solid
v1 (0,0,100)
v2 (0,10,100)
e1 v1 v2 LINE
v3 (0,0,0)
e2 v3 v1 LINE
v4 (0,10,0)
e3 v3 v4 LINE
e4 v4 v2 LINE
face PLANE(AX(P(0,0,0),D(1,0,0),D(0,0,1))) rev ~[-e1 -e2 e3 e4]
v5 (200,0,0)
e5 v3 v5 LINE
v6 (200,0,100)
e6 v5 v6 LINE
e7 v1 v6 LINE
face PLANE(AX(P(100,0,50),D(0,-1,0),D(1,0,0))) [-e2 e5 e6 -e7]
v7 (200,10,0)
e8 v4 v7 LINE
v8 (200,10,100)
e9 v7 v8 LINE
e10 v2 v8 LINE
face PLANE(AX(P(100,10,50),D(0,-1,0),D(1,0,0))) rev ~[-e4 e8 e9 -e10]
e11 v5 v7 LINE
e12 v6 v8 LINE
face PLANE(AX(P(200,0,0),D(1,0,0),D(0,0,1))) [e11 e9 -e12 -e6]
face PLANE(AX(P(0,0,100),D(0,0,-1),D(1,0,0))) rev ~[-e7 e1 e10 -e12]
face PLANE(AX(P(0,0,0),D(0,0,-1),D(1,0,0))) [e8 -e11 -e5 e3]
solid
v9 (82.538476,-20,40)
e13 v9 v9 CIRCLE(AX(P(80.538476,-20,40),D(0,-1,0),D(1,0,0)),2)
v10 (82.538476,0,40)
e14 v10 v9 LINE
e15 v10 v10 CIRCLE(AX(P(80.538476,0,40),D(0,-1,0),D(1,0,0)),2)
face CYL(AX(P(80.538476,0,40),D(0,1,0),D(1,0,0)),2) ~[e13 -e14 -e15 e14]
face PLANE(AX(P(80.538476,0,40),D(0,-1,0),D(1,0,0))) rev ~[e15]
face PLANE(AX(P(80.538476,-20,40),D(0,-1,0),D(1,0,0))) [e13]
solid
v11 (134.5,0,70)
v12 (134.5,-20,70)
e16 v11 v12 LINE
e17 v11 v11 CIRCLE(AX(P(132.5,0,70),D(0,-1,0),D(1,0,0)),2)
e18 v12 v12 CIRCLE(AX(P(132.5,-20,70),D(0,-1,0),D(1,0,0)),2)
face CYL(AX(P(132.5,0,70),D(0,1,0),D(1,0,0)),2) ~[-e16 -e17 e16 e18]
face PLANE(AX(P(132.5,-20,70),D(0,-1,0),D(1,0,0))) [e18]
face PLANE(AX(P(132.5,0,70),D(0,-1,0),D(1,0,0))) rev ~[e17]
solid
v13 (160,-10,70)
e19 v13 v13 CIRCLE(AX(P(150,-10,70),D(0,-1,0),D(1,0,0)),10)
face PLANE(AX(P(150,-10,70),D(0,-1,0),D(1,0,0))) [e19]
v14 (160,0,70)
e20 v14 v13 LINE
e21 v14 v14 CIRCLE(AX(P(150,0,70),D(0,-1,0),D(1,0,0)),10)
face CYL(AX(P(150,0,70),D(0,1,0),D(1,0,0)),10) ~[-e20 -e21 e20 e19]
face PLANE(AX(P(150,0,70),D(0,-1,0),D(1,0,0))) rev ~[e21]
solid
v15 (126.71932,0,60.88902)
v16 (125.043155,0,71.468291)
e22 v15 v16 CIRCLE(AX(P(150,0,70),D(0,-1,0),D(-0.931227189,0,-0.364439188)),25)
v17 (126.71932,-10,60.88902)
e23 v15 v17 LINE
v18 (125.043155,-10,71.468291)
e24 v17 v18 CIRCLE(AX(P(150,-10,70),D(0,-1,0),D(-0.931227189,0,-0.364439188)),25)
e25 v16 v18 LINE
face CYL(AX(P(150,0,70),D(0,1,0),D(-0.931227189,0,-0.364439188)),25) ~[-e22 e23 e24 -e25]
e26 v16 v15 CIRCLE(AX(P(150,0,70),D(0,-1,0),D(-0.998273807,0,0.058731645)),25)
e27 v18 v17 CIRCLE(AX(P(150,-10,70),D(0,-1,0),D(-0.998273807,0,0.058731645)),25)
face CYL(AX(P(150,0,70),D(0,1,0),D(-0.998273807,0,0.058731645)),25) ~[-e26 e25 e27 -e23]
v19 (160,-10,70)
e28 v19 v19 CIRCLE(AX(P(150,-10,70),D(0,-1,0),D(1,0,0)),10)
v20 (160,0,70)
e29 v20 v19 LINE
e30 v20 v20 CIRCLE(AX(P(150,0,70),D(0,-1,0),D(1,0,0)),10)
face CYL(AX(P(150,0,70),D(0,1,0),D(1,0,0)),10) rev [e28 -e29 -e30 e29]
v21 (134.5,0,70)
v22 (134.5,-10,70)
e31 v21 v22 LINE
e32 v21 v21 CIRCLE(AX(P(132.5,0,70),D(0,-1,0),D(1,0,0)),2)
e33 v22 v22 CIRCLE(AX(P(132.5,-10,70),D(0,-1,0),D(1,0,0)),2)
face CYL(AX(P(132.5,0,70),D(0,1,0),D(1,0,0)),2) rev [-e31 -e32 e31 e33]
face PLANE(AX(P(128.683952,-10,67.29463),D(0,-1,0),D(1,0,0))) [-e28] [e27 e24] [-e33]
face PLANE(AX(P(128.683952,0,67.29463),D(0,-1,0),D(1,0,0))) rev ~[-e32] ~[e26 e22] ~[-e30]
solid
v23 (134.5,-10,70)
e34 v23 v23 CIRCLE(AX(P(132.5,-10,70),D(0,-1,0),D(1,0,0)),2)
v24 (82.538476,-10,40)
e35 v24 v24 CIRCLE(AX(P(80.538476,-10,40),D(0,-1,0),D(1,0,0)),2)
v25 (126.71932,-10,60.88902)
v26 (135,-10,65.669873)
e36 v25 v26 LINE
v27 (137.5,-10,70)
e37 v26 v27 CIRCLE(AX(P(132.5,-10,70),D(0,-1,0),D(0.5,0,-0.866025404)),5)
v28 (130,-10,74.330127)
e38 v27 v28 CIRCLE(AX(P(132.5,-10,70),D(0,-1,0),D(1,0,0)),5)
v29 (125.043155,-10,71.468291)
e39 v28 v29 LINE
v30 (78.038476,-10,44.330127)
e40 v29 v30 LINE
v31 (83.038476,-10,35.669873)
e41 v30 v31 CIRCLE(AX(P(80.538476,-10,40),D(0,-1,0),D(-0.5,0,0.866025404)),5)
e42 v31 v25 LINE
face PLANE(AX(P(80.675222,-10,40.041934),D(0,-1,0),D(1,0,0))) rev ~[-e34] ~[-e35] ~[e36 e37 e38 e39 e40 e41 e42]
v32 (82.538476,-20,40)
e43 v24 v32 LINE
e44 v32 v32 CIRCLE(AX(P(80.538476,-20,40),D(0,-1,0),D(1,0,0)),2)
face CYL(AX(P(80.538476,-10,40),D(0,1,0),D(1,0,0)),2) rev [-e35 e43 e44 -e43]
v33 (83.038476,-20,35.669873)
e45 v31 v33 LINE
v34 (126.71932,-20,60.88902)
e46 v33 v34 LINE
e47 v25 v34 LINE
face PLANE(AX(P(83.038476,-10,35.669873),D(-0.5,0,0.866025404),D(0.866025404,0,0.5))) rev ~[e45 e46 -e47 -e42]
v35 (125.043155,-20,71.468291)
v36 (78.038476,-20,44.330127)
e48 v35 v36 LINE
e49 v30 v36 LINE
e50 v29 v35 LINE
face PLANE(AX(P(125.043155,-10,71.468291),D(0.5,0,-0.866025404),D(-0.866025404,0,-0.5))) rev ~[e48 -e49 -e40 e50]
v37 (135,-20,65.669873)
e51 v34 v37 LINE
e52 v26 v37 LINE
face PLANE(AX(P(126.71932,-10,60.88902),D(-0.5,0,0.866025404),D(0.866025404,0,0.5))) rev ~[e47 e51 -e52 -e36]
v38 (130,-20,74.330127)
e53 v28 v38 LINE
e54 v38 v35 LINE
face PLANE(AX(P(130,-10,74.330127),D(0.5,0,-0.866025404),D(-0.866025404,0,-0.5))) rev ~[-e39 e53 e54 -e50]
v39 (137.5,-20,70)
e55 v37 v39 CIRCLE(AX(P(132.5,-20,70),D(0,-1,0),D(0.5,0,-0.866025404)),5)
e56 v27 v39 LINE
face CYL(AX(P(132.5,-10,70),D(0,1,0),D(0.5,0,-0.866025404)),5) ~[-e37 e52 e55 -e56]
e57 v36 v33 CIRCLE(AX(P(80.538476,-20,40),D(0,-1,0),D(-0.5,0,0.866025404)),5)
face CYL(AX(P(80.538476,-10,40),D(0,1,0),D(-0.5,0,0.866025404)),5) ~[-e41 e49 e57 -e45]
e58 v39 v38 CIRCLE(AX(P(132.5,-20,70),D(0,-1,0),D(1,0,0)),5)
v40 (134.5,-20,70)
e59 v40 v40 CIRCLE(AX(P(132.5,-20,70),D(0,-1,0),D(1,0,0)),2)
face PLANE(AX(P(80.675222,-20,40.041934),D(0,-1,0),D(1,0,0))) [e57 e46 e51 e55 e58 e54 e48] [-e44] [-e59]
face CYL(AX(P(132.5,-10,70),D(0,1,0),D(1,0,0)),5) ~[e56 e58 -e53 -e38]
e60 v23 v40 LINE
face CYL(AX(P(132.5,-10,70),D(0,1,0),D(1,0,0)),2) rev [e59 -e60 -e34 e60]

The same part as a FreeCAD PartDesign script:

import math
import FreeCAD as App
import Part
import Sketcher

V = App.Vector
Q = App.Units.Quantity

doc = App.newDocument("Part")
params = doc.addObject("Spreadsheet::Sheet", "Params")
for row, (alias, value) in enumerate([
    ("sketch1_width", "200 mm"),
    ("sketch1_height", "100 mm"),
    ("pad1_length", "10 mm"),
    ("sketch2_diameter", "4 mm"),
    ("sketch2_diameter2", "20 mm"),
    ("sketch2_radius", "25 mm"),
    ("pad2_length", "10 mm"),
    ("sketch3_diameter", "4 mm"),
    ("sketch3_radius", "5 mm"),
    ("pad3_length", "10 mm"),
    ("sketch4_diameter", "20 mm"),
    ("pad4_length", "10 mm"),
    ("sketch5_diameter", "4 mm"),
    ("pad5_length", "20 mm"),
    ("sketch6_diameter", "4 mm"),
    ("pad6_length", "20 mm"),
], start=1):
    params.set(f"A{row}", alias)
    params.set(f"B{row}", "=" + value)
    params.setAlias(f"B{row}", alias)

body = doc.addObject("PartDesign::Body", "Body")

# Sketch on XZ plane
sketch1 = body.newObject("Sketcher::SketchObject", "Sketch")
sketch1.AttachmentSupport = (doc.getObject("XZ_Plane"), [""])
sketch1.MapMode = "FlatFace"
sketch1.addGeometry(Part.LineSegment(V(0, 100, 0), V(0, 0, 0)), False)
sketch1.addGeometry(Part.LineSegment(V(0, 0, 0), V(200, 0, 0)), False)
sketch1.addGeometry(Part.LineSegment(V(200, 0, 0), V(200, 100, 0)), False)
sketch1.addGeometry(Part.LineSegment(V(200, 100, 0), V(0, 100, 0)), False)
sketch1.addConstraint(Sketcher.Constraint("Coincident", 0, 2, 1, 1))
sketch1.addConstraint(Sketcher.Constraint("Coincident", 1, 2, 2, 1))
sketch1.addConstraint(Sketcher.Constraint("Coincident", 2, 2, 3, 1))
sketch1.addConstraint(Sketcher.Constraint("Coincident", 3, 2, 0, 1))
sketch1.addConstraint(Sketcher.Constraint("Vertical", 0))
sketch1.addConstraint(Sketcher.Constraint("Horizontal", 1))
sketch1.addConstraint(Sketcher.Constraint("Vertical", 2))
sketch1.addConstraint(Sketcher.Constraint("Horizontal", 3))
sketch1.addConstraint(Sketcher.Constraint("Coincident", 0, 2, -1, 1))
sketch1.addConstraint(Sketcher.Constraint("DistanceX", 1, 1, 1, 2, Q("200 mm")))
sketch1.addConstraint(Sketcher.Constraint("DistanceY", 0, 2, 0, 1, Q("100 mm")))
sketch1.setExpression("Constraints[9]", "Params.sketch1_width")
sketch1.setExpression("Constraints[10]", "Params.sketch1_height")
pad1 = body.newObject("PartDesign::Pad", "Pad")
pad1.Profile = sketch1
pad1.setExpression("Length", "Params.pad1_length")
pad1.Reversed = True
body2 = doc.addObject("PartDesign::Body", "Body001")

# Sketch on XZ plane
sketch2 = body2.newObject("Sketcher::SketchObject", "Sketch001")
sketch2.AttachmentSupport = (doc.getObject("XZ_Plane001"), [""])
sketch2.MapMode = "FlatFace"
sketch2.addGeometry(Part.ArcOfCircle(Part.Circle(V(150, 70, 0), V(0, 0, 1), 25), math.radians(176.632987), math.radians(201.373073)), False)
sketch2.addGeometry(Part.ArcOfCircle(Part.Circle(V(150, 70, 0), V(0, 0, 1), 25), math.radians(-158.626927), math.radians(176.632987)), False)
sketch2.addGeometry(Part.Circle(V(132.5, 70, 0), V(0, 0, 1), 2), False)
sketch2.addGeometry(Part.Circle(V(150, 70, 0), V(0, 0, 1), 10), False)
sketch2.addConstraint(Sketcher.Constraint("Tangent", 0, 1, 1, 2))
sketch2.addConstraint(Sketcher.Constraint("Coincident", 1, 1, 0, 2))
sketch2.addConstraint(Sketcher.Constraint("Coincident", 3, 3, 0, 3))
sketch2.addConstraint(Sketcher.Constraint("Horizontal", 1, 3, 2, 3))
sketch2.addConstraint(Sketcher.Constraint("Diameter", 2, Q("4 mm")))
sketch2.addConstraint(Sketcher.Constraint("Diameter", 3, Q("20 mm")))
sketch2.addConstraint(Sketcher.Constraint("Radius", 0, Q("25 mm")))
sketch2.addConstraint(Sketcher.Constraint("DistanceX", -1, 1, 0, 3, Q("150 mm")))
sketch2.addConstraint(Sketcher.Constraint("DistanceY", -1, 1, 0, 3, Q("70 mm")))
sketch2.addConstraint(Sketcher.Constraint("DistanceX", -1, 1, 2, 3, Q("132.5 mm")))
sketch2.addConstraint(Sketcher.Constraint("DistanceY", -1, 1, 0, 1, Q("71.468291 mm")))
sketch2.addConstraint(Sketcher.Constraint("DistanceX", -1, 1, 1, 1, Q("126.71932 mm")))
sketch2.setExpression("Constraints[4]", "Params.sketch2_diameter")
sketch2.setExpression("Constraints[5]", "Params.sketch2_diameter2")
sketch2.setExpression("Constraints[6]", "Params.sketch2_radius")
pad2 = body2.newObject("PartDesign::Pad", "Pad001")
pad2.Profile = sketch2
pad2.setExpression("Length", "Params.pad2_length")
body3 = doc.addObject("PartDesign::Body", "Body002")

# Sketch on XZ plane
sketch3 = body3.newObject("Sketcher::SketchObject", "Sketch002")
sketch3.AttachmentSupport = (doc.getObject("XZ_Plane002"), [""])
sketch3.MapMode = "FlatFace"
sketch3.AttachmentOffset = App.Placement(V(0, 0, 10), App.Rotation())
sketch3.addGeometry(Part.ArcOfCircle(Part.Circle(V(80.538476, 40, 0), V(0, 0, 1), 5), math.radians(120), math.radians(300)), False)
sketch3.addGeometry(Part.LineSegment(V(83.038476, 35.669873, 0), V(126.71932, 60.88902, 0)), False)
sketch3.addGeometry(Part.LineSegment(V(126.71932, 60.88902, 0), V(135, 65.669873, 0)), False)
sketch3.addGeometry(Part.ArcOfCircle(Part.Circle(V(132.5, 70, 0), V(0, 0, 1), 5), math.radians(-60), math.radians(0)), False)
sketch3.addGeometry(Part.ArcOfCircle(Part.Circle(V(132.5, 70, 0), V(0, 0, 1), 5), math.radians(0), math.radians(120)), False)
sketch3.addGeometry(Part.LineSegment(V(130, 74.330127, 0), V(125.043155, 71.468291, 0)), False)
sketch3.addGeometry(Part.LineSegment(V(125.043155, 71.468291, 0), V(78.038476, 44.330127, 0)), False)
sketch3.addGeometry(Part.Circle(V(80.538476, 40, 0), V(0, 0, 1), 2), False)
sketch3.addGeometry(Part.Circle(V(132.5, 70, 0), V(0, 0, 1), 2), False)
sketch3.addConstraint(Sketcher.Constraint("Tangent", 0, 2, 1, 1))
sketch3.addConstraint(Sketcher.Constraint("Coincident", 1, 2, 2, 1))
sketch3.addConstraint(Sketcher.Constraint("Tangent", 2, 2, 3, 1))
sketch3.addConstraint(Sketcher.Constraint("Tangent", 3, 2, 4, 1))
sketch3.addConstraint(Sketcher.Constraint("Tangent", 4, 2, 5, 1))
sketch3.addConstraint(Sketcher.Constraint("Coincident", 5, 2, 6, 1))
sketch3.addConstraint(Sketcher.Constraint("Tangent", 6, 2, 0, 1))
sketch3.addConstraint(Sketcher.Constraint("Coincident", 7, 3, 0, 3))
sketch3.addConstraint(Sketcher.Constraint("Coincident", 8, 3, 3, 3))
sketch3.addConstraint(Sketcher.Constraint("Equal", 0, 3))
sketch3.addConstraint(Sketcher.Constraint("Equal", 3, 4))
sketch3.addConstraint(Sketcher.Constraint("Equal", 7, 8))
sketch3.addConstraint(Sketcher.Constraint("Parallel", 1, 2))
sketch3.addConstraint(Sketcher.Constraint("Parallel", 2, 5))
sketch3.addConstraint(Sketcher.Constraint("Horizontal", 8, 3, 3, 2))
sketch3.addConstraint(Sketcher.Constraint("Diameter", 7, Q("4 mm")))
sketch3.addConstraint(Sketcher.Constraint("Radius", 0, Q("5 mm")))
sketch3.addConstraint(Sketcher.Constraint("Angle", 1, Q("30 deg")))
sketch3.addConstraint(Sketcher.Constraint("DistanceY", -1, 1, 0, 3, Q("40 mm")))
sketch3.addConstraint(Sketcher.Constraint("DistanceY", -1, 1, 3, 3, Q("70 mm")))
sketch3.addConstraint(Sketcher.Constraint("DistanceX", -1, 1, 2, 2, Q("135 mm")))
sketch3.addConstraint(Sketcher.Constraint("Distance", 5, Q("5.723672 mm")))
sketch3.addConstraint(Sketcher.Constraint("DistanceX", -1, 1, 1, 2, Q("126.71932 mm")))
sketch3.setExpression("Constraints[15]", "Params.sketch3_diameter")
sketch3.setExpression("Constraints[16]", "Params.sketch3_radius")
pad3 = body3.newObject("PartDesign::Pad", "Pad002")
pad3.Profile = sketch3
pad3.setExpression("Length", "Params.pad3_length")
body4 = doc.addObject("PartDesign::Body", "Body003")

# Sketch on XZ plane
sketch4 = body4.newObject("Sketcher::SketchObject", "Sketch003")
sketch4.AttachmentSupport = (doc.getObject("XZ_Plane003"), [""])
sketch4.MapMode = "FlatFace"
sketch4.addGeometry(Part.Circle(V(150, 70, 0), V(0, 0, 1), 10), False)
sketch4.addConstraint(Sketcher.Constraint("Diameter", 0, Q("20 mm")))
sketch4.addConstraint(Sketcher.Constraint("DistanceX", -1, 1, 0, 3, Q("150 mm")))
sketch4.addConstraint(Sketcher.Constraint("DistanceY", -1, 1, 0, 3, Q("70 mm")))
sketch4.setExpression("Constraints[0]", "Params.sketch4_diameter")
pad4 = body4.newObject("PartDesign::Pad", "Pad003")
pad4.Profile = sketch4
pad4.setExpression("Length", "Params.pad4_length")
body5 = doc.addObject("PartDesign::Body", "Body004")

# Sketch on XZ plane
sketch5 = body5.newObject("Sketcher::SketchObject", "Sketch004")
sketch5.AttachmentSupport = (doc.getObject("XZ_Plane004"), [""])
sketch5.MapMode = "FlatFace"
sketch5.addGeometry(Part.Circle(V(80.538476, 40, 0), V(0, 0, 1), 2), False)
sketch5.addConstraint(Sketcher.Constraint("Diameter", 0, Q("4 mm")))
sketch5.addConstraint(Sketcher.Constraint("DistanceY", -1, 1, 0, 3, Q("40 mm")))
sketch5.addConstraint(Sketcher.Constraint("DistanceX", -1, 1, 0, 3, Q("80.538476 mm")))
sketch5.setExpression("Constraints[0]", "Params.sketch5_diameter")
pad5 = body5.newObject("PartDesign::Pad", "Pad004")
pad5.Profile = sketch5
pad5.setExpression("Length", "Params.pad5_length")
body6 = doc.addObject("PartDesign::Body", "Body005")

# Sketch on XZ plane
sketch6 = body6.newObject("Sketcher::SketchObject", "Sketch005")
sketch6.AttachmentSupport = (doc.getObject("XZ_Plane005"), [""])
sketch6.MapMode = "FlatFace"
sketch6.addGeometry(Part.Circle(V(132.5, 70, 0), V(0, 0, 1), 2), False)
sketch6.addConstraint(Sketcher.Constraint("Diameter", 0, Q("4 mm")))
sketch6.addConstraint(Sketcher.Constraint("DistanceY", -1, 1, 0, 3, Q("70 mm")))
sketch6.addConstraint(Sketcher.Constraint("DistanceX", -1, 1, 0, 3, Q("132.5 mm")))
sketch6.setExpression("Constraints[0]", "Params.sketch6_diameter")
pad6 = body6.newObject("PartDesign::Pad", "Pad005")
pad6.Profile = sketch6
pad6.setExpression("Length", "Params.pad6_length")

doc.recompute()
